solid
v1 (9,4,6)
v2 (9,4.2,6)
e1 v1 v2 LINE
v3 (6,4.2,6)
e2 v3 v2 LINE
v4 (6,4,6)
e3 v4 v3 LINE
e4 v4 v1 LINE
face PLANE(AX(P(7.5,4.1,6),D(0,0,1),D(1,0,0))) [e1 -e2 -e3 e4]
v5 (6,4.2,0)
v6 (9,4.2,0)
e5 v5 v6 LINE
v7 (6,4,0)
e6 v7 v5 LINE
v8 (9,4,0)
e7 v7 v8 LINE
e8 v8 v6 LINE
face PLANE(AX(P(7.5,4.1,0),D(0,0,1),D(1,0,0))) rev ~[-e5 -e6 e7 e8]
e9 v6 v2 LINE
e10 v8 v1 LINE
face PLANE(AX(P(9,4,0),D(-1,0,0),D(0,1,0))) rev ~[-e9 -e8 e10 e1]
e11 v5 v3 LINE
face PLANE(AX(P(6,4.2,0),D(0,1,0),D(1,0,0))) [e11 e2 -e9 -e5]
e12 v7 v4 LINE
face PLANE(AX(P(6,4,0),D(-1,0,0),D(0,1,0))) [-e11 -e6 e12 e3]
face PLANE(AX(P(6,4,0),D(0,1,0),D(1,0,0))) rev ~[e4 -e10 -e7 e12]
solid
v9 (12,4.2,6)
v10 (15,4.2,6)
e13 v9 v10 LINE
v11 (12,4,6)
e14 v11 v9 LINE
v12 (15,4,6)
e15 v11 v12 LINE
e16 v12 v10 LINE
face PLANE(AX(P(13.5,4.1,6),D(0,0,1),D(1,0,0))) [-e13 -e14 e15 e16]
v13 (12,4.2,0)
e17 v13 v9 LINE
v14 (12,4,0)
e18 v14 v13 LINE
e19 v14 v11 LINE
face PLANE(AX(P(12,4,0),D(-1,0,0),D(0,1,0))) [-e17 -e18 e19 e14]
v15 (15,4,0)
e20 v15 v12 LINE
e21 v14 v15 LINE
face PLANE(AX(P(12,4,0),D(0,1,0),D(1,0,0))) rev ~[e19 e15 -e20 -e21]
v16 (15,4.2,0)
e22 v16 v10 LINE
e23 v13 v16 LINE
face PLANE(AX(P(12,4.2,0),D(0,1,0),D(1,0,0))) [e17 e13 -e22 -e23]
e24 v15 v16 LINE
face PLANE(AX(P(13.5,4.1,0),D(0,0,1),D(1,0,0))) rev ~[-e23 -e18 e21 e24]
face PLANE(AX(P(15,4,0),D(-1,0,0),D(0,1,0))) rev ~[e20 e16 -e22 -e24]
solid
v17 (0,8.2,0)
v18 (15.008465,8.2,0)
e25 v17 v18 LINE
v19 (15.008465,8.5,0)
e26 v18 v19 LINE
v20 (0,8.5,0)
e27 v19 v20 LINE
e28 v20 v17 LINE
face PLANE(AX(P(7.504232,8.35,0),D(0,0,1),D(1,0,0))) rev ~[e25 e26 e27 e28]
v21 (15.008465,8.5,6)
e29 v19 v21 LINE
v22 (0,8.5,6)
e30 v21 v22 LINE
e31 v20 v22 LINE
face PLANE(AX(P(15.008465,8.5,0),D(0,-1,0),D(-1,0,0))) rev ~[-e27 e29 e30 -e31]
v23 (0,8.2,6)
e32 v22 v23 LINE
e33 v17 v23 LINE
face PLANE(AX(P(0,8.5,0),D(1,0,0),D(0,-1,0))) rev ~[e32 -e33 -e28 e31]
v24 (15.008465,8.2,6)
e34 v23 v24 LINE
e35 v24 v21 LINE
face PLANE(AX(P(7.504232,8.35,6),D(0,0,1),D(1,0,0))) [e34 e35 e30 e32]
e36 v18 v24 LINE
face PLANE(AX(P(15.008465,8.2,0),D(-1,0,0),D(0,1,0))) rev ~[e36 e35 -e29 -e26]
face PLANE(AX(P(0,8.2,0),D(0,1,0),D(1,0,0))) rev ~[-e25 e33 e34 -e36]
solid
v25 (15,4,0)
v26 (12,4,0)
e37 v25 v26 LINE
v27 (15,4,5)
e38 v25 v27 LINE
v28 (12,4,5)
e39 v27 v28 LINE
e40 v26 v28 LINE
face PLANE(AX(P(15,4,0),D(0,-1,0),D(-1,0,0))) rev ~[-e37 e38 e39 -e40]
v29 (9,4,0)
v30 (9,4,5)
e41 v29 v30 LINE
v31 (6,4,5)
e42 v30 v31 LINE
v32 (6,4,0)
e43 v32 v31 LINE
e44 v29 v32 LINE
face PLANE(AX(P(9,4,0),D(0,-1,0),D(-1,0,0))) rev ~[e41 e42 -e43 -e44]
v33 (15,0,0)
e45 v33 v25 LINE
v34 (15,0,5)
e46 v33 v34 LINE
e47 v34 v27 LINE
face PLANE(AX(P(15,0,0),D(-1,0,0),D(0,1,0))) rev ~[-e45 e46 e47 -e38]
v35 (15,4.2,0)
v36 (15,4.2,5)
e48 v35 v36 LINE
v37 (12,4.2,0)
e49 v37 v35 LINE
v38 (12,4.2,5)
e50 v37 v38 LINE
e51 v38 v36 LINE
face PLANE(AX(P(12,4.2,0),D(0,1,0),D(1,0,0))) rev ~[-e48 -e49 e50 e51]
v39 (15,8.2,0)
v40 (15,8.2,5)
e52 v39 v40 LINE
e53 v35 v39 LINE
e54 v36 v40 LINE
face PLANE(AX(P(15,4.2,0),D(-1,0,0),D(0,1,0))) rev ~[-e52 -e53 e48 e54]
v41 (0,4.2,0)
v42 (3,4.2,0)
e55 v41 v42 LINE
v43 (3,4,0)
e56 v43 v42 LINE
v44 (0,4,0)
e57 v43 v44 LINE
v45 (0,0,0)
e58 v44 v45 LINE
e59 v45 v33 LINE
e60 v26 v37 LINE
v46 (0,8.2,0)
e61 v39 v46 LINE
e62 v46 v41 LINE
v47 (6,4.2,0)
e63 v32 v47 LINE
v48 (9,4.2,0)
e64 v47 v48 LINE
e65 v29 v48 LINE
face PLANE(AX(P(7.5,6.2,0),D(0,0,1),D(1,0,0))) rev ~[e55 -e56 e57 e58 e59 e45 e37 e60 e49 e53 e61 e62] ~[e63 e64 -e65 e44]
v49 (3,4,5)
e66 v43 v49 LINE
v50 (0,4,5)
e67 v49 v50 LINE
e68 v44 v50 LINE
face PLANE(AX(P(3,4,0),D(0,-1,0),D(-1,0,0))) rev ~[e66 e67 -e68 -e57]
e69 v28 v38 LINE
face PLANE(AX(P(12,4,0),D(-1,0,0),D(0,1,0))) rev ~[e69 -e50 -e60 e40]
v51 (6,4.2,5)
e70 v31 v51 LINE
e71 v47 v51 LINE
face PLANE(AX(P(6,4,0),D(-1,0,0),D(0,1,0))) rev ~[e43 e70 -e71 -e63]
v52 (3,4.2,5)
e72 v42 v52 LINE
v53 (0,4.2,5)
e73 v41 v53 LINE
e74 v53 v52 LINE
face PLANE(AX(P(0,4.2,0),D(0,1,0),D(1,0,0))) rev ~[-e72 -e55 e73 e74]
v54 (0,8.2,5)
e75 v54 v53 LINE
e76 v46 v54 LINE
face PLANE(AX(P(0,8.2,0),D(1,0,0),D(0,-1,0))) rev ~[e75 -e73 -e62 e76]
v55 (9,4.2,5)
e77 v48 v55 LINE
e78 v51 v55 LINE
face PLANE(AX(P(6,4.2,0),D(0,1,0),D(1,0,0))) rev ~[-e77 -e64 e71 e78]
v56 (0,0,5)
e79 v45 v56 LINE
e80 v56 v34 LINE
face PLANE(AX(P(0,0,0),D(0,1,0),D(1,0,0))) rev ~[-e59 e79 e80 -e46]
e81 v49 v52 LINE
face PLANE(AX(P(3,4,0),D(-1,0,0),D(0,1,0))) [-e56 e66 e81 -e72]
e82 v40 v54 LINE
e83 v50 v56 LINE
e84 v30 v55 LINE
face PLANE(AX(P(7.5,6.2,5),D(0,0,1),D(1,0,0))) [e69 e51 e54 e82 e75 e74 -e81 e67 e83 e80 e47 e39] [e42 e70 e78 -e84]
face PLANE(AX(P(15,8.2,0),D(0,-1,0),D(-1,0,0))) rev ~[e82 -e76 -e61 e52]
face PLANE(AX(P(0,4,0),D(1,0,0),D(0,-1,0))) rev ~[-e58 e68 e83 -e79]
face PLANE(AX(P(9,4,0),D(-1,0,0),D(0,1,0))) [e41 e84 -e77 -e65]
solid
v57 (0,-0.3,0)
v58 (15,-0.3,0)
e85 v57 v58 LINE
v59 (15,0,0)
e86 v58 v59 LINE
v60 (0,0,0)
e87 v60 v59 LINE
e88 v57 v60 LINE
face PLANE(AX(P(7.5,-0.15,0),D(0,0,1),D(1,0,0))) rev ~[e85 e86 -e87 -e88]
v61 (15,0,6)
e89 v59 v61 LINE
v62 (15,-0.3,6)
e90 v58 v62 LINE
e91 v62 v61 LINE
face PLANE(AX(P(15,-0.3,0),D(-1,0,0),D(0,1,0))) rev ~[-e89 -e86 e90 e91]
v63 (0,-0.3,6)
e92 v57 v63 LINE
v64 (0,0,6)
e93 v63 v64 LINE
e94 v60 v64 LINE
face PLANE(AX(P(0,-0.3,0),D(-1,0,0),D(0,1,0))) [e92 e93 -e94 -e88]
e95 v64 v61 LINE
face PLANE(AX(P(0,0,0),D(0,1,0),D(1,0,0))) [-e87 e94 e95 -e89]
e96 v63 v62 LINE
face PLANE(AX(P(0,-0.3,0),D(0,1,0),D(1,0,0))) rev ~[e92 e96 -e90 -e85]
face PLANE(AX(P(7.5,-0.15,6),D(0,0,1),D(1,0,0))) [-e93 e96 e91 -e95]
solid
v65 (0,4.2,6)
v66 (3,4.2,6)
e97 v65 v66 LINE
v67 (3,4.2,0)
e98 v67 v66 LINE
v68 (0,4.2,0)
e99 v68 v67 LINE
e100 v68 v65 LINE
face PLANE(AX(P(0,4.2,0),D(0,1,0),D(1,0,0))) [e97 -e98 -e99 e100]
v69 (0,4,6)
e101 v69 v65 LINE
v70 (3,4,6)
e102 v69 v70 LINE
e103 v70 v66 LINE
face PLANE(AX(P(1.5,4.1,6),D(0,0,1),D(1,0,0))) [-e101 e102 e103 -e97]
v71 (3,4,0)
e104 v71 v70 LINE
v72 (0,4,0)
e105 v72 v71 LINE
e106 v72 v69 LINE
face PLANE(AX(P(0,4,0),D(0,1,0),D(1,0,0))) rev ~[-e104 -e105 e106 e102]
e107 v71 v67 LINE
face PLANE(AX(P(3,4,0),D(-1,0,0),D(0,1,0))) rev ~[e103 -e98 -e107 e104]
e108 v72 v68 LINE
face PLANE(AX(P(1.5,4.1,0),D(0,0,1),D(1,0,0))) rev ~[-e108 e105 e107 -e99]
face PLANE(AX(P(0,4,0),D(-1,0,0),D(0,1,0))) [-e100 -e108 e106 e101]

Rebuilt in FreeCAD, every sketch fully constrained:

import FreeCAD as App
import Part
import Sketcher
Q = App.Units.Quantity

doc = App.newDocument("Part")
body = doc.addObject("PartDesign::Body", "Body")

sketch1 = body.newObject("Sketcher::SketchObject", "Sketch")
sketch1.AttachmentSupport = (doc.getObject("XY_Plane"), [""])
sketch1.MapMode = "FlatFace"
sketch1.addGeometry([
    Part.LineSegment(App.Vector(0, 8.2, 0), App.Vector(0, 4.2, 0)),
    Part.LineSegment(App.Vector(0, 4.2, 0), App.Vector(3, 4.2, 0)),
    Part.LineSegment(App.Vector(3, 4.2, 0), App.Vector(3, 4, 0)),
    Part.LineSegment(App.Vector(3, 4, 0), App.Vector(0, 4, 0)),
    Part.LineSegment(App.Vector(0, 4, 0), App.Vector(0, 0, 0)),
    Part.LineSegment(App.Vector(0, 0, 0), App.Vector(15, 0, 0)),
    Part.LineSegment(App.Vector(15, 0, 0), App.Vector(15, 4, 0)),
    Part.LineSegment(App.Vector(15, 4, 0), App.Vector(12, 4, 0)),
    Part.LineSegment(App.Vector(12, 4, 0), App.Vector(12, 4.2, 0)),
    Part.LineSegment(App.Vector(12, 4.2, 0), App.Vector(15, 4.2, 0)),
    Part.LineSegment(App.Vector(15, 4.2, 0), App.Vector(15, 8.2, 0)),
    Part.LineSegment(App.Vector(15, 8.2, 0), App.Vector(0, 8.2, 0)),
    Part.LineSegment(App.Vector(9, 4, 0), App.Vector(6, 4, 0)),
    Part.LineSegment(App.Vector(6, 4, 0), App.Vector(6, 4.2, 0)),
    Part.LineSegment(App.Vector(6, 4.2, 0), App.Vector(9, 4.2, 0)),
    Part.LineSegment(App.Vector(9, 4.2, 0), App.Vector(9, 4, 0)),
], False)
sketch1.addConstraint([
    Sketcher.Constraint("Coincident", 0, 2, 1, 1),
    Sketcher.Constraint("Coincident", 1, 2, 2, 1),
    Sketcher.Constraint("Coincident", 2, 2, 3, 1),
    Sketcher.Constraint("Coincident", 3, 2, 4, 1),
    Sketcher.Constraint("Coincident", 4, 2, 5, 1),
    Sketcher.Constraint("Coincident", 5, 2, 6, 1),
    Sketcher.Constraint("Coincident", 6, 2, 7, 1),
    Sketcher.Constraint("Coincident", 7, 2, 8, 1),
    Sketcher.Constraint("Coincident", 8, 2, 9, 1),
    Sketcher.Constraint("Coincident", 9, 2, 10, 1),
    Sketcher.Constraint("Coincident", 10, 2, 11, 1),
    Sketcher.Constraint("Coincident", 11, 2, 0, 1),
    Sketcher.Constraint("Coincident", 12, 2, 13, 1),
    Sketcher.Constraint("Coincident", 13, 2, 14, 1),
    Sketcher.Constraint("Coincident", 14, 2, 15, 1),
    Sketcher.Constraint("Coincident", 15, 2, 12, 1),
    Sketcher.Constraint("Vertical", 0),
    Sketcher.Constraint("Horizontal", 1),
    Sketcher.Constraint("Vertical", 2),
    Sketcher.Constraint("Horizontal", 3),
    Sketcher.Constraint("Vertical", 4),
    Sketcher.Constraint("Horizontal", 5),
    Sketcher.Constraint("Vertical", 6),
    Sketcher.Constraint("Horizontal", 7),
    Sketcher.Constraint("Vertical", 8),
    Sketcher.Constraint("Horizontal", 9),
    Sketcher.Constraint("Vertical", 10),
    Sketcher.Constraint("Horizontal", 11),
    Sketcher.Constraint("Horizontal", 12),
    Sketcher.Constraint("Vertical", 13),
    Sketcher.Constraint("Horizontal", 14),
    Sketcher.Constraint("Vertical", 15),
    Sketcher.Constraint("Coincident", 4, 2, -1, 1),
    Sketcher.Constraint("PointOnObject", 0, 2, -2),
    Sketcher.Constraint("Horizontal", 3, 2, 6, 2),
    Sketcher.Constraint("Horizontal", 1, 2, 8, 2),
    Sketcher.Constraint("Horizontal", 7, 2, 12, 2),
    Sketcher.Constraint("Horizontal", 9, 2, 13, 2),
    Sketcher.Constraint("Vertical", 6, 2, 9, 2),
    Sketcher.Constraint("Equal", 3, 7),
    Sketcher.Constraint("Equal", 9, 12),
    Sketcher.Constraint("Equal", 0, 4),
    Sketcher.Constraint("DistanceX", 1, 1, 1, 2, Q("3 mm")),
    Sketcher.Constraint("DistanceX", 5, 1, 5, 2, Q("15 mm")),
    Sketcher.Constraint("DistanceY", 0, 2, 0, 1, Q("4 mm")),
    Sketcher.Constraint("DistanceY", 2, 2, 2, 1, Q("0.2 mm")),
    Sketcher.Constraint("DistanceX", -1, 1, 12, 2, Q("6 mm")),
])
pad1 = body.newObject("PartDesign::Pad", "Pad")
pad1.Profile = sketch1
pad1.Length = 5
body2 = doc.addObject("PartDesign::Body", "Body001")
body2.AllowCompound = True

sketch2 = body2.newObject("Sketcher::SketchObject", "Sketch001")
sketch2.AttachmentSupport = (doc.getObject("XY_Plane001"), [""])
sketch2.MapMode = "FlatFace"
sketch2.addGeometry([
    Part.LineSegment(App.Vector(0, 8.5, 0), App.Vector(0, 8.2, 0)),
    Part.LineSegment(App.Vector(0, 8.2, 0), App.Vector(15.01, 8.2, 0)),
    Part.LineSegment(App.Vector(15.01, 8.2, 0), App.Vector(15.01, 8.5, 0)),
    Part.LineSegment(App.Vector(15.01, 8.5, 0), App.Vector(0, 8.5, 0)),
    Part.LineSegment(App.Vector(0, 4.2, 0), App.Vector(0, 4, 0)),
    Part.LineSegment(App.Vector(0, 4, 0), App.Vector(3, 4, 0)),
    Part.LineSegment(App.Vector(3, 4, 0), App.Vector(3, 4.2, 0)),
    Part.LineSegment(App.Vector(3, 4.2, 0), App.Vector(0, 4.2, 0)),
    Part.LineSegment(App.Vector(6, 4.2, 0), App.Vector(6, 4, 0)),
    Part.LineSegment(App.Vector(6, 4, 0), App.Vector(9, 4, 0)),
    Part.LineSegment(App.Vector(9, 4, 0), App.Vector(9, 4.2, 0)),
    Part.LineSegment(App.Vector(9, 4.2, 0), App.Vector(6, 4.2, 0)),
    Part.LineSegment(App.Vector(12, 4.2, 0), App.Vector(12, 4, 0)),
    Part.LineSegment(App.Vector(12, 4, 0), App.Vector(15, 4, 0)),
    Part.LineSegment(App.Vector(15, 4, 0), App.Vector(15, 4.2, 0)),
    Part.LineSegment(App.Vector(15, 4.2, 0), App.Vector(12, 4.2, 0)),
    Part.LineSegment(App.Vector(0, 0, 0), App.Vector(0, -0.3, 0)),
    Part.LineSegment(App.Vector(0, -0.3, 0), App.Vector(15, -0.3, 0)),
    Part.LineSegment(App.Vector(15, -0.3, 0), App.Vector(15, 0, 0)),
    Part.LineSegment(App.Vector(15, 0, 0), App.Vector(0, 0, 0)),
], False)
sketch2.addConstraint([
    Sketcher.Constraint("Coincident", 0, 2, 1, 1),
    Sketcher.Constraint("Coincident", 1, 2, 2, 1),
    Sketcher.Constraint("Coincident", 2, 2, 3, 1),
    Sketcher.Constraint("Coincident", 3, 2, 0, 1),
    Sketcher.Constraint("Coincident", 4, 2, 5, 1),
    Sketcher.Constraint("Coincident", 5, 2, 6, 1),
    Sketcher.Constraint("Coincident", 6, 2, 7, 1),
    Sketcher.Constraint("Coincident", 7, 2, 4, 1),
    Sketcher.Constraint("Coincident", 8, 2, 9, 1),
    Sketcher.Constraint("Coincident", 9, 2, 10, 1),
    Sketcher.Constraint("Coincident", 10, 2, 11, 1),
    Sketcher.Constraint("Coincident", 11, 2, 8, 1),
    Sketcher.Constraint("Coincident", 12, 2, 13, 1),
    Sketcher.Constraint("Coincident", 13, 2, 14, 1),
    Sketcher.Constraint("Coincident", 14, 2, 15, 1),
    Sketcher.Constraint("Coincident", 15, 2, 12, 1),
    Sketcher.Constraint("Coincident", 16, 2, 17, 1),
    Sketcher.Constraint("Coincident", 17, 2, 18, 1),
    Sketcher.Constraint("Coincident", 18, 2, 19, 1),
    Sketcher.Constraint("Coincident", 19, 2, 16, 1),
    Sketcher.Constraint("Vertical", 0),
    Sketcher.Constraint("Horizontal", 1),
    Sketcher.Constraint("Vertical", 2),
    Sketcher.Constraint("Horizontal", 3),
    Sketcher.Constraint("Vertical", 4),
    Sketcher.Constraint("Horizontal", 5),
    Sketcher.Constraint("Vertical", 6),
    Sketcher.Constraint("Horizontal", 7),
    Sketcher.Constraint("Vertical", 8),
    Sketcher.Constraint("Horizontal", 9),
    Sketcher.Constraint("Vertical", 10),
    Sketcher.Constraint("Horizontal", 11),
    Sketcher.Constraint("Vertical", 12),
    Sketcher.Constraint("Horizontal", 13),
    Sketcher.Constraint("Vertical", 14),
    Sketcher.Constraint("Horizontal", 15),
    Sketcher.Constraint("Vertical", 16),
    Sketcher.Constraint("Horizontal", 17),
    Sketcher.Constraint("Vertical", 18),
    Sketcher.Constraint("Horizontal", 19),
    Sketcher.Constraint("Coincident", 19, 2, -1, 1),
    Sketcher.Constraint("PointOnObject", 0, 2, -2),
    Sketcher.Constraint("PointOnObject", 4, 2, -2),
    Sketcher.Constraint("Horizontal", 5, 2, 8, 2),
    Sketcher.Constraint("Horizontal", 7, 2, 10, 2),
    Sketcher.Constraint("Horizontal", 9, 2, 12, 2),
    Sketcher.Constraint("Horizontal", 11, 2, 14, 2),
    Sketcher.Constraint("Vertical", 14, 2, 17, 2),
    Sketcher.Constraint("Equal", 7, 9),
    Sketcher.Constraint("Equal", 11, 13),
    Sketcher.Constraint("Equal", 2, 16),
    Sketcher.Constraint("DistanceX", 5, 1, 5, 2, Q("3 mm")),
    Sketcher.Constraint("DistanceX", 17, 1, 17, 2, Q("15 mm")),
    Sketcher.Constraint("DistanceY", 0, 2, 0, 1, Q("0.3 mm")),
    Sketcher.Constraint("DistanceY", 4, 2, 4, 1, Q("0.2 mm")),
    Sketcher.Constraint("DistanceY", -1, 1, 4, 2, Q("4 mm")),
    Sketcher.Constraint("DistanceX", -1, 1, 8, 2, Q("6 mm")),
    Sketcher.Constraint("DistanceY", 6, 2, 0, 2, Q("4 mm")),
    Sketcher.Constraint("DistanceX", 1, 1, 1, 2, Q("15.008465 mm")),
])
pad2 = body2.newObject("PartDesign::Pad", "Pad001")
pad2.Profile = sketch2
pad2.Length = 6

doc.recompute()
